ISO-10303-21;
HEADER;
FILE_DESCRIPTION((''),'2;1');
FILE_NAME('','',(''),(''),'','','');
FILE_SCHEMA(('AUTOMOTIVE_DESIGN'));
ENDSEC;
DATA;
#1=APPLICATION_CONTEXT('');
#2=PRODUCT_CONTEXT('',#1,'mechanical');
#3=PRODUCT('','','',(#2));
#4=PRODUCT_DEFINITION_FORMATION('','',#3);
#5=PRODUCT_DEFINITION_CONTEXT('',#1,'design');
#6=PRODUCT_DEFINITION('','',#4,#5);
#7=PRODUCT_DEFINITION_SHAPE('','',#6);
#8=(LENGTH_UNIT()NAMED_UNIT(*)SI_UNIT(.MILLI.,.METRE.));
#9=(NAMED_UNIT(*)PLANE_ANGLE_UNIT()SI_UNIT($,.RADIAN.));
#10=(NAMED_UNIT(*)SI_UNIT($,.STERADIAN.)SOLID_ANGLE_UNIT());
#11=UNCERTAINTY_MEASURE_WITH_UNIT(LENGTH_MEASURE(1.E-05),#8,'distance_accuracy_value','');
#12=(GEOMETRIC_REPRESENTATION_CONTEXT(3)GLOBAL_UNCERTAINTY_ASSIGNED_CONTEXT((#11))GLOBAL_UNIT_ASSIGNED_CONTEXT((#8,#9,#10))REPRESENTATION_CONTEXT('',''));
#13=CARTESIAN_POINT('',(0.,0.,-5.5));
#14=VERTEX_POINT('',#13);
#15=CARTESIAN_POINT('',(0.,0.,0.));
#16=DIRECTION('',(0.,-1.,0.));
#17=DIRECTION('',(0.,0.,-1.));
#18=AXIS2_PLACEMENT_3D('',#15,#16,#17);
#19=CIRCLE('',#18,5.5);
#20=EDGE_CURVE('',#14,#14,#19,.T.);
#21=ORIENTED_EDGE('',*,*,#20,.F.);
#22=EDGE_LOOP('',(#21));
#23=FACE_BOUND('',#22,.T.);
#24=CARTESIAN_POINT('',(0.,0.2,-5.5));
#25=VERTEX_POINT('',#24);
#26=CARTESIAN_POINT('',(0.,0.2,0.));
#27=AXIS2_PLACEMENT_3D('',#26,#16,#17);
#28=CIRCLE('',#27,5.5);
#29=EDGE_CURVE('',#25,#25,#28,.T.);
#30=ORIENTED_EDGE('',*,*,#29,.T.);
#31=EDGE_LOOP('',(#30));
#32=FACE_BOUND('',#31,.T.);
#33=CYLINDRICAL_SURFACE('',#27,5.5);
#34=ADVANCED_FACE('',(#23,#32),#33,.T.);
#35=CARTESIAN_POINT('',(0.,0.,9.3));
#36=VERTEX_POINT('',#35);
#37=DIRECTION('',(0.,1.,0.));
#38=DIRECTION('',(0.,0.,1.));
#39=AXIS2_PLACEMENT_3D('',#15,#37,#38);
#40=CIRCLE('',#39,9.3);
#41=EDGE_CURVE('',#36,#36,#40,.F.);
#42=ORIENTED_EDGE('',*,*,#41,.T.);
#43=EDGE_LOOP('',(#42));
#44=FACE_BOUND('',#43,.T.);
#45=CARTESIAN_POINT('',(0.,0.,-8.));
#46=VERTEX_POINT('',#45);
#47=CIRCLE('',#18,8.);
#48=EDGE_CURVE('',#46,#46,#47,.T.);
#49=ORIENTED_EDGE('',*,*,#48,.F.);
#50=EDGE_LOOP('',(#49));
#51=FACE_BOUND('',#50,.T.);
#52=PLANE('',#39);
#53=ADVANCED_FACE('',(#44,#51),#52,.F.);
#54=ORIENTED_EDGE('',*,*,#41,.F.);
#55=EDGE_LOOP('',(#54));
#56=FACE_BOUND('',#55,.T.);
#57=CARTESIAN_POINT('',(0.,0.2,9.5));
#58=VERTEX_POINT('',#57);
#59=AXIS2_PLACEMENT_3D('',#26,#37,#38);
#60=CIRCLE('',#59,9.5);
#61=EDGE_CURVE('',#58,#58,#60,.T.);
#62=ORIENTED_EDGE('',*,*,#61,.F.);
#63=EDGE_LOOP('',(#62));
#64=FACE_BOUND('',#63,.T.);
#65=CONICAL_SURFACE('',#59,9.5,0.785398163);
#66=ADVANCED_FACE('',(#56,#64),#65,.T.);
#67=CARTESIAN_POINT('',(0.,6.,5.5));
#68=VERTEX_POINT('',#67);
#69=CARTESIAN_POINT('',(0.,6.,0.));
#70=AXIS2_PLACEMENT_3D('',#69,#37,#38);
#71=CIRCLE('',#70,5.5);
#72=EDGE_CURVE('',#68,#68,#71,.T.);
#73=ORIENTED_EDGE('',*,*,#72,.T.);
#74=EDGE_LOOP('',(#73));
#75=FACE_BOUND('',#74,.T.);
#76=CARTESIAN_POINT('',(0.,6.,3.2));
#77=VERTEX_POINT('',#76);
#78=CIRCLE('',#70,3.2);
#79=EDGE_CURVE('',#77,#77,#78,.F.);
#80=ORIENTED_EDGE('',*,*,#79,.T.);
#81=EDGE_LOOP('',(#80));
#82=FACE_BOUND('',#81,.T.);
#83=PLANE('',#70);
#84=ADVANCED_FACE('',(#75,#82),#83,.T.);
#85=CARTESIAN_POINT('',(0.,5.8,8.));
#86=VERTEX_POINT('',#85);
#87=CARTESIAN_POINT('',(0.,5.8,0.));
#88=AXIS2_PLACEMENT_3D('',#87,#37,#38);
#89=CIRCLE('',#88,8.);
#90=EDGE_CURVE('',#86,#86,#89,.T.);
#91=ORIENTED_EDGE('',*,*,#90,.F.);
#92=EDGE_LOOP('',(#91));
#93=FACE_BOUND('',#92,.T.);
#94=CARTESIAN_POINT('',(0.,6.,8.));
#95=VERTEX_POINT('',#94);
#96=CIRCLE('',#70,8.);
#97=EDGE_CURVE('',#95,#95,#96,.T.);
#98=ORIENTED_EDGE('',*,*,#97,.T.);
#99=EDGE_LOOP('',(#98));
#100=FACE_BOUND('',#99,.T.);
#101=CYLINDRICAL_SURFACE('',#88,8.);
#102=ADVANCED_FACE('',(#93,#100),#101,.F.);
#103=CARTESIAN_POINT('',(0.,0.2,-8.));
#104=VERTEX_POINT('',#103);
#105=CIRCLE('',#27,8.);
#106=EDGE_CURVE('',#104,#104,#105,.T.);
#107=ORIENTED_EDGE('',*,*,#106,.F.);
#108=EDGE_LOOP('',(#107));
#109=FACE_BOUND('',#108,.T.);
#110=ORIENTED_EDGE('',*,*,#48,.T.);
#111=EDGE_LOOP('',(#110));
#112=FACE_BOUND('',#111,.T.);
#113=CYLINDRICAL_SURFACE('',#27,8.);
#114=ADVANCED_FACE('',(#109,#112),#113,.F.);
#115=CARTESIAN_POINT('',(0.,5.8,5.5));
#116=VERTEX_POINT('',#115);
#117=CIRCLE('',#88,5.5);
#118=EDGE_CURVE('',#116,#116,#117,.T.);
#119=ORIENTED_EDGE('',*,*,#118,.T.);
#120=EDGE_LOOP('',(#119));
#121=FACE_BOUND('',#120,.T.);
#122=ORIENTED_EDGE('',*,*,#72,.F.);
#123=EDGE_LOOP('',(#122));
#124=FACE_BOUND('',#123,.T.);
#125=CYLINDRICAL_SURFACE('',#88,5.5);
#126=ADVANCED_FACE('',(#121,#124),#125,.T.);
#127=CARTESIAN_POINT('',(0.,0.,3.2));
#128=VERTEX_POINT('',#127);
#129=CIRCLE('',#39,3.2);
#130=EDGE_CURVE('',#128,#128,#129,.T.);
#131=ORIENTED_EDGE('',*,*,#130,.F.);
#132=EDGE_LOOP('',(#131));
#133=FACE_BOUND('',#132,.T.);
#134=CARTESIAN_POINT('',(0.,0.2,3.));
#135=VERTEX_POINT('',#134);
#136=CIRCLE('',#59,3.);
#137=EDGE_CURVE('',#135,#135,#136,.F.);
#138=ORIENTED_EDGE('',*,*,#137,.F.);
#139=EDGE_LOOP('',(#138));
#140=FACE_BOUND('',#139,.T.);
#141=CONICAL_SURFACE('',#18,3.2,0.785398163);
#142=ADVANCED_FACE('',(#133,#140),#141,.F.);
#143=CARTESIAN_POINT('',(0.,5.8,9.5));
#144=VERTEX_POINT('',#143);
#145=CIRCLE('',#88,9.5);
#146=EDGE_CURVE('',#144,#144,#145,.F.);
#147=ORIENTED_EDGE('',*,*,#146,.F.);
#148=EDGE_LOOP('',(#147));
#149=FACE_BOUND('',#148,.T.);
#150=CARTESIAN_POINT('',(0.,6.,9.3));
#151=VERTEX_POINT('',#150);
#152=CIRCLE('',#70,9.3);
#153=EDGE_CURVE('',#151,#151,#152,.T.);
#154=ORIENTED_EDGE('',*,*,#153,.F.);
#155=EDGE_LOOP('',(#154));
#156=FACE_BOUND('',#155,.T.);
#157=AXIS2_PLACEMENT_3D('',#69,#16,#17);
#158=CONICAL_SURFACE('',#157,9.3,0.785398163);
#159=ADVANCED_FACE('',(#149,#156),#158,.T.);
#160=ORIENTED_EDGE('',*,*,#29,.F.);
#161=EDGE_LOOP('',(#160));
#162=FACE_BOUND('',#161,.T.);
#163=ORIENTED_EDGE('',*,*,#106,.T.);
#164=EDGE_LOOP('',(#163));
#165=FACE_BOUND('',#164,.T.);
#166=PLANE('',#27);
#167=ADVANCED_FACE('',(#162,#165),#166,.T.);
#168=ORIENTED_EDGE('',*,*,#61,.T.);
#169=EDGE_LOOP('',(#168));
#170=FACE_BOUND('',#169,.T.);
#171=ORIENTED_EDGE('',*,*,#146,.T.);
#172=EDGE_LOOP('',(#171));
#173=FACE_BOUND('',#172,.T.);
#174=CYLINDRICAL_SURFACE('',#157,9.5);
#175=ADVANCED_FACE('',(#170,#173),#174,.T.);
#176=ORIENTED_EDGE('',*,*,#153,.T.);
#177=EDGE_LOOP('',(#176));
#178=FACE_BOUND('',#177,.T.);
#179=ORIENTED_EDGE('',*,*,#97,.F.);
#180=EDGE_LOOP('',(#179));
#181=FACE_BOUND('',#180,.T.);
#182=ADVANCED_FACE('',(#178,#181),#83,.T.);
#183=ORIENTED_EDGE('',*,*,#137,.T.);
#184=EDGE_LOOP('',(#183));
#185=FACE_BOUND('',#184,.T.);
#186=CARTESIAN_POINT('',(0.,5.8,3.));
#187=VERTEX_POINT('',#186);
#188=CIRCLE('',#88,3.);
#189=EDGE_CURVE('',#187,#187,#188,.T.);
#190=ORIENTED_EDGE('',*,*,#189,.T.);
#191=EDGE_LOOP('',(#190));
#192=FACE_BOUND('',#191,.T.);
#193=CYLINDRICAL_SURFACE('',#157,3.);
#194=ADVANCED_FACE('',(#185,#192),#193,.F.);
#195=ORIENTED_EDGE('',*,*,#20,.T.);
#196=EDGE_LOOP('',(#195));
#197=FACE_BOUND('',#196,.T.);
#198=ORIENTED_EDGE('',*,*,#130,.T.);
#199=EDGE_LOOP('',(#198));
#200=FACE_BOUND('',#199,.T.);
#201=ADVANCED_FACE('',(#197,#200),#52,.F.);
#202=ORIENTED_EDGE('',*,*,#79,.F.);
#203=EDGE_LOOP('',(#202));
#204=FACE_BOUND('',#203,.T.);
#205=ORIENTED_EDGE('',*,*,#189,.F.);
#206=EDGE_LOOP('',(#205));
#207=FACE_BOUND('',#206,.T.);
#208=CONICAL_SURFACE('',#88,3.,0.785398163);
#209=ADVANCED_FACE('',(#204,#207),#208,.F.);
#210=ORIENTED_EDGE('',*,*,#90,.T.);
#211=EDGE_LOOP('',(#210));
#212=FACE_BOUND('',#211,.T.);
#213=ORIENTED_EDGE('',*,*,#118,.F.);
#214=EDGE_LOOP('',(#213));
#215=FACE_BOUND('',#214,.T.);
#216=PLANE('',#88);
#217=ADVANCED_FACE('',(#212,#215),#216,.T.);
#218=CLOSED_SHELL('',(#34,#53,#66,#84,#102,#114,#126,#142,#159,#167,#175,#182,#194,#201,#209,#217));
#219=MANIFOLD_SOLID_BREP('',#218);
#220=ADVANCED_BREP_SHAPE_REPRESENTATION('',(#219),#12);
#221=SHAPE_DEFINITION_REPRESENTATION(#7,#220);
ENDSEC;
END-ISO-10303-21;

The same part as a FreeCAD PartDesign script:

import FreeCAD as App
import Part
import Sketcher

V = App.Vector


def edges_at(feature, points):
    """Names of the edges that pass closest to the given points."""
    edges = feature.Shape.Edges
    near = lambda p: min(range(len(edges)), key=lambda i: edges[i].distToShape(Part.Vertex(*p))[0])
    return sorted({f"Edge{near(p) + 1}" for p in points})

doc = App.newDocument("Part")
params = doc.addObject("Spreadsheet::Sheet", "Params")
for row, (alias, value) in enumerate([
    ("sketch1_diameter", "19 mm"),
    ("sketch1_diameter2", "6 mm"),
    ("pad1_length", "6 mm"),
    ("sketch2_diameter", "16 mm"),
    ("sketch2_diameter2", "11 mm"),
    ("pocket1_length", "0.2 mm"),
    ("sketch3_diameter", "16 mm"),
    ("sketch3_diameter2", "11 mm"),
    ("pocket2_length", "0.2 mm"),
    ("chamfer_size", "0.2 mm"),
], start=1):
    params.set(f"A{row}", alias)
    params.set(f"B{row}", "=" + value)
    params.setAlias(f"B{row}", alias)

body = doc.addObject("PartDesign::Body", "Body")

sketch1 = body.newObject("Sketcher::SketchObject", "Sketch")
sketch1.AttachmentSupport = (doc.getObject("XZ_Plane"), [""])
sketch1.MapMode = "FlatFace"
sketch1.addGeometry(Part.Circle(V(0, 0, 0), V(0, 0, 1), 9.5), False)
sketch1.addGeometry(Part.Circle(V(0, 0, 0), V(0, 0, 1), 3), False)
sketch1.addConstraint(Sketcher.Constraint("Coincident", 0, 3, -1, 1))
sketch1.addConstraint(Sketcher.Constraint("Coincident", 1, 3, -1, 1))
sketch1.addConstraint(Sketcher.Constraint("Diameter", 0, 19.0))
sketch1.addConstraint(Sketcher.Constraint("Diameter", 1, 6.0))
sketch1.setExpression("Constraints[2]", "Params.sketch1_diameter")
sketch1.setExpression("Constraints[3]", "Params.sketch1_diameter2")
pad1 = body.newObject("PartDesign::Pad", "Pad")
pad1.Profile = sketch1
pad1.setExpression("Length", "Params.pad1_length")
pad1.Reversed = True

sketch2 = body.newObject("Sketcher::SketchObject", "Sketch001")
sketch2.AttachmentSupport = (doc.getObject("XZ_Plane"), [""])
sketch2.MapMode = "FlatFace"
sketch2.AttachmentOffset = App.Placement(V(0, 0, -6), App.Rotation())
sketch2.addGeometry(Part.Circle(V(0, 0, 0), V(0, 0, 1), 8), False)
sketch2.addGeometry(Part.Circle(V(0, 0, 0), V(0, 0, 1), 5.5), False)
sketch2.addConstraint(Sketcher.Constraint("Coincident", 0, 3, -1, 1))
sketch2.addConstraint(Sketcher.Constraint("Coincident", 1, 3, -1, 1))
sketch2.addConstraint(Sketcher.Constraint("Diameter", 0, 16.0))
sketch2.addConstraint(Sketcher.Constraint("Diameter", 1, 11.0))
sketch2.setExpression("Constraints[2]", "Params.sketch2_diameter")
sketch2.setExpression("Constraints[3]", "Params.sketch2_diameter2")
pocket1 = body.newObject("PartDesign::Pocket", "Pocket")
pocket1.Profile = sketch2
pocket1.setExpression("Length", "Params.pocket1_length")
pocket1.Reversed = True

sketch3 = body.newObject("Sketcher::SketchObject", "Sketch002")
sketch3.AttachmentSupport = (doc.getObject("XZ_Plane"), [""])
sketch3.MapMode = "FlatFace"
sketch3.addGeometry(Part.Circle(V(0, 0, 0), V(0, 0, 1), 8), False)
sketch3.addGeometry(Part.Circle(V(0, 0, 0), V(0, 0, 1), 5.5), False)
sketch3.addConstraint(Sketcher.Constraint("Coincident", 0, 3, -1, 1))
sketch3.addConstraint(Sketcher.Constraint("Coincident", 1, 3, -1, 1))
sketch3.addConstraint(Sketcher.Constraint("Diameter", 0, 16.0))
sketch3.addConstraint(Sketcher.Constraint("Diameter", 1, 11.0))
sketch3.setExpression("Constraints[2]", "Params.sketch3_diameter")
sketch3.setExpression("Constraints[3]", "Params.sketch3_diameter2")
pocket2 = body.newObject("PartDesign::Pocket", "Pocket001")
pocket2.Profile = sketch3
pocket2.setExpression("Length", "Params.pocket2_length")
doc.recompute()

chamfer = body.newObject("PartDesign::Chamfer", "Chamfer")
chamfer.Base = (pocket2, edges_at(pocket2, [
    (-9.5, 0, 0),
    (-9.5, 6, 0),
    (-3, 0, 0),
    (-3, 6, 0),
]))
chamfer.setExpression("Size", "Params.chamfer_size")

doc.recompute()
